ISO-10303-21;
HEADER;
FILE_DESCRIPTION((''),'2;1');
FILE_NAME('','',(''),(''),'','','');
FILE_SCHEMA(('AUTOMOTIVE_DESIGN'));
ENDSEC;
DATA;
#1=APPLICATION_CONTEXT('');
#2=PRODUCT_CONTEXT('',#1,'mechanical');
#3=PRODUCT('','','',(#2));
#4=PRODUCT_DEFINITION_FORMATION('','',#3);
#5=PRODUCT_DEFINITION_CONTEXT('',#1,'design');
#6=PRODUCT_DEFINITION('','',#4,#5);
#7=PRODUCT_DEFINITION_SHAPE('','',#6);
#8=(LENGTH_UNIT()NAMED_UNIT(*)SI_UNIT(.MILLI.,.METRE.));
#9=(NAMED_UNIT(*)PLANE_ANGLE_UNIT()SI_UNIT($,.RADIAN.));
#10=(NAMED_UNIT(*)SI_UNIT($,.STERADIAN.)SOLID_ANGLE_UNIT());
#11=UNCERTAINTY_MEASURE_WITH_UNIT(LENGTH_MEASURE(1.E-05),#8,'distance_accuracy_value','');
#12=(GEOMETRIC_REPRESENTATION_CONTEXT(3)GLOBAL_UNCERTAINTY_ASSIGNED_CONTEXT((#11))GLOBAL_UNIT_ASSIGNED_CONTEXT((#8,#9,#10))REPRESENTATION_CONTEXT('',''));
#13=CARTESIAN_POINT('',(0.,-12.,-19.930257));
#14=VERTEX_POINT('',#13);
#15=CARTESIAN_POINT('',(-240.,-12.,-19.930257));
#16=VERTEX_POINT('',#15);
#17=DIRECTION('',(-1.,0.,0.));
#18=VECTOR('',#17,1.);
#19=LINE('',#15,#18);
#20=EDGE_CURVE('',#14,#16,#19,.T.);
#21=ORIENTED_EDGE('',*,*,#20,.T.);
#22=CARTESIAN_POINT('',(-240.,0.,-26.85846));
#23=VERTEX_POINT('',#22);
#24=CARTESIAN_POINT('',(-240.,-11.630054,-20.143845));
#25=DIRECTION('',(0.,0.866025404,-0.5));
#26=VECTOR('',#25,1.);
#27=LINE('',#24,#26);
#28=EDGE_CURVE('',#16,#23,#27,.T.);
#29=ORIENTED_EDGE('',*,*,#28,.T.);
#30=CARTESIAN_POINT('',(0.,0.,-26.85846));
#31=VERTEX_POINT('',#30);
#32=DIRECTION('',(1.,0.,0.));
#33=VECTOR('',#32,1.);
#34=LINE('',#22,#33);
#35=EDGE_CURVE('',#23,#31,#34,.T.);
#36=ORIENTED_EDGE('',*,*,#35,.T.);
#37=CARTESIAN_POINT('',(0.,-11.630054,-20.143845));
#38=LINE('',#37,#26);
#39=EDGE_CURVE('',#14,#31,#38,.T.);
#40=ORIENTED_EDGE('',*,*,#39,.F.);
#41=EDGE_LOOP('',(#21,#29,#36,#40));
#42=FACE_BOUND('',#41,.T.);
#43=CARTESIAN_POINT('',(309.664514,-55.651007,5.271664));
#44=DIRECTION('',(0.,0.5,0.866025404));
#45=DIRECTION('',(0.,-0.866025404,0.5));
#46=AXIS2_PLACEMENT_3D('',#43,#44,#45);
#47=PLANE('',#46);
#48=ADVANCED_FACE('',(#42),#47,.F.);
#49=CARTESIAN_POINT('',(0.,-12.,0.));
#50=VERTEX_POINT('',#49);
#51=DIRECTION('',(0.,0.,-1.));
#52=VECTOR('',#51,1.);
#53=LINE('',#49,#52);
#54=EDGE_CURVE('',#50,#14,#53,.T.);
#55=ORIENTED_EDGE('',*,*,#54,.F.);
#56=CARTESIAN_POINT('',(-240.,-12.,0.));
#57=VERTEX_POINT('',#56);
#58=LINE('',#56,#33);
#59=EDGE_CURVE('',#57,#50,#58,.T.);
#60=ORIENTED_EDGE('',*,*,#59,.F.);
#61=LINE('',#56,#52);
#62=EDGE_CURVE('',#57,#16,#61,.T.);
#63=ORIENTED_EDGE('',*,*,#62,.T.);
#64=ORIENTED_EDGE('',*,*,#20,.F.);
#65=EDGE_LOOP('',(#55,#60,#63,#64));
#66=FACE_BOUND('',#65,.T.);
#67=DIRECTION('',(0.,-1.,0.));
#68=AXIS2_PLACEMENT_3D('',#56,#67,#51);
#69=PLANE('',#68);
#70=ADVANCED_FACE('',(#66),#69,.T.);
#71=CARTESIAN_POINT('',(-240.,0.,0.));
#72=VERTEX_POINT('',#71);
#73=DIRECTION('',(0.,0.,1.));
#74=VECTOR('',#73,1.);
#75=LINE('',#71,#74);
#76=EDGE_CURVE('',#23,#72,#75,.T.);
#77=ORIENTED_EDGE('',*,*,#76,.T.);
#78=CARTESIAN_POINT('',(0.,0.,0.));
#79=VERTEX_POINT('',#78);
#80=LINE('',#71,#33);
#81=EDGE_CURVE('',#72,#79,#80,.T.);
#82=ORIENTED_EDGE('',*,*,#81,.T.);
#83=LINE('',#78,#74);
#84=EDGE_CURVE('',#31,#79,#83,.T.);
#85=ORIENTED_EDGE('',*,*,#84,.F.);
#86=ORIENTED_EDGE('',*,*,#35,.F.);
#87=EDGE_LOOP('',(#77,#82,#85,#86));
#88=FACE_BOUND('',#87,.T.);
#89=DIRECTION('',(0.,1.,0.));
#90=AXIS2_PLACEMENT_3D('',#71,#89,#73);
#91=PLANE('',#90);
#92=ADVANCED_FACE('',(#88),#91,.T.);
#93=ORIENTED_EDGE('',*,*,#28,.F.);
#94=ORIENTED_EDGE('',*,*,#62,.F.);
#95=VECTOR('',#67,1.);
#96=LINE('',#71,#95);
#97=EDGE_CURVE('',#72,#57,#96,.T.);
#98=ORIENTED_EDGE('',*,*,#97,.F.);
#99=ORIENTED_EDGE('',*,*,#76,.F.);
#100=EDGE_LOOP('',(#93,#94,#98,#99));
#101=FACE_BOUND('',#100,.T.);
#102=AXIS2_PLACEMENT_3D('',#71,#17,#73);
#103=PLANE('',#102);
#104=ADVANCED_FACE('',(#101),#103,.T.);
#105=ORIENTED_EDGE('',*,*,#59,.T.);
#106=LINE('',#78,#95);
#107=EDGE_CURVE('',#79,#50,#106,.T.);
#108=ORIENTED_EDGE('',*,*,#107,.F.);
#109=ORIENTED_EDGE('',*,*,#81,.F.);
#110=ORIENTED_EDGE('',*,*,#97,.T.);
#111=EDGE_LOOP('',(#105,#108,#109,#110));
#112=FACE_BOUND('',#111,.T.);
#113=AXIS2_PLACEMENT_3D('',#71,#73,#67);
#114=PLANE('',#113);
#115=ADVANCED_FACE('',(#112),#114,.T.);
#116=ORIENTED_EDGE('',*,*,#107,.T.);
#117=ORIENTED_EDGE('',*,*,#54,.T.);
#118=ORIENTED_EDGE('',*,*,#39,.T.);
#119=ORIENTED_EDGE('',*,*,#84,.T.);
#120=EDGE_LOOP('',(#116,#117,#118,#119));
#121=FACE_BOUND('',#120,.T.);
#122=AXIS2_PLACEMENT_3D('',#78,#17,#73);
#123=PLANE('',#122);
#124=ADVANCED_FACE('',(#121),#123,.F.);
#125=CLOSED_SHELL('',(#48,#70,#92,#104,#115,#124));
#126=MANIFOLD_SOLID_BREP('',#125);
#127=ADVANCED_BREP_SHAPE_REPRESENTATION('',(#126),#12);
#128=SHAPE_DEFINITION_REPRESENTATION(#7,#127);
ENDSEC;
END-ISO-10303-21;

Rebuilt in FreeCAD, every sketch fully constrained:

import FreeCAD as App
import Part
import Sketcher
from FreeCAD import Vector
Q = App.Units.Quantity

doc = App.newDocument("Part")
body = doc.addObject("PartDesign::Body", "Body")

sketch1 = body.newObject("Sketcher::SketchObject", "Sketch")
sketch1.AttachmentSupport = (doc.getObject("YZ_Plane"), [""])
sketch1.MapMode = "FlatFace"
sketch1.addGeometry([
    Part.LineSegment(Vector(0, 0, 0), Vector(-12, 0, 0)),
    Part.LineSegment(Vector(-12, 0, 0), Vector(-12, -60, 0)),
    Part.LineSegment(Vector(-12, -60, 0), Vector(0, -60, 0)),
    Part.LineSegment(Vector(0, -60, 0), Vector(0, 0, 0)),
], False)
sketch1.addConstraint([
    Sketcher.Constraint("Coincident", 0, 2, 1, 1),
    Sketcher.Constraint("Coincident", 1, 2, 2, 1),
    Sketcher.Constraint("Coincident", 2, 2, 3, 1),
    Sketcher.Constraint("Coincident", 3, 2, 0, 1),
    Sketcher.Constraint("Horizontal", 0),
    Sketcher.Constraint("Vertical", 1),
    Sketcher.Constraint("Horizontal", 2),
    Sketcher.Constraint("Vertical", 3),
    Sketcher.Constraint("Coincident", 3, 2, -1, 1),
    Sketcher.Constraint("DistanceX", 0, 2, 0, 1, 12.0),
    Sketcher.Constraint("DistanceY", 1, 2, 1, 1, 60.224174),
])
pad1 = body.newObject("PartDesign::Pad", "Pad")
pad1.Profile = sketch1
pad1.Length = 240
pad1.Reversed = True

sketch2 = body.newObject("Sketcher::SketchObject", "Sketch001")
sketch2.AttachmentSupport = (doc.getObject("YZ_Plane"), [""])
sketch2.MapMode = "FlatFace"
sketch2.addGeometry([
    Part.LineSegment(Vector(406, -261, 0), Vector(-343, 171, 0)),
    Part.LineSegment(Vector(-343, 171, 0), Vector(-675, -404, 0)),
    Part.LineSegment(Vector(-675, -404, 0), Vector(74, -836, 0)),
    Part.LineSegment(Vector(74, -836, 0), Vector(406, -261, 0)),
], False)
sketch2.addConstraint([
    Sketcher.Constraint("Coincident", 0, 2, 1, 1),
    Sketcher.Constraint("Coincident", 1, 2, 2, 1),
    Sketcher.Constraint("Coincident", 2, 2, 3, 1),
    Sketcher.Constraint("Coincident", 3, 2, 0, 1),
    Sketcher.Constraint("Perpendicular", 0, 1),
    Sketcher.Constraint("Perpendicular", 1, 2),
    Sketcher.Constraint("Perpendicular", 2, 3),
    Sketcher.Constraint("Angle", 0, Q("150 deg")),
    Sketcher.Constraint("DistanceY", -1, 1, 0, 2, 171.333101),
    Sketcher.Constraint("DistanceY", 1, 2, -1, 1, 403.92059),
    Sketcher.Constraint("DistanceX", -1, 1, 3, 2, 405.676841),
    Sketcher.Constraint("DistanceX", 0, 2, 2, 2, 416.83182),
])
pocket1 = body.newObject("PartDesign::Pocket", "Pocket")
pocket1.Profile = sketch2
pocket1.Type = "ThroughAll"
pocket1.Midplane = True

doc.recompute()
